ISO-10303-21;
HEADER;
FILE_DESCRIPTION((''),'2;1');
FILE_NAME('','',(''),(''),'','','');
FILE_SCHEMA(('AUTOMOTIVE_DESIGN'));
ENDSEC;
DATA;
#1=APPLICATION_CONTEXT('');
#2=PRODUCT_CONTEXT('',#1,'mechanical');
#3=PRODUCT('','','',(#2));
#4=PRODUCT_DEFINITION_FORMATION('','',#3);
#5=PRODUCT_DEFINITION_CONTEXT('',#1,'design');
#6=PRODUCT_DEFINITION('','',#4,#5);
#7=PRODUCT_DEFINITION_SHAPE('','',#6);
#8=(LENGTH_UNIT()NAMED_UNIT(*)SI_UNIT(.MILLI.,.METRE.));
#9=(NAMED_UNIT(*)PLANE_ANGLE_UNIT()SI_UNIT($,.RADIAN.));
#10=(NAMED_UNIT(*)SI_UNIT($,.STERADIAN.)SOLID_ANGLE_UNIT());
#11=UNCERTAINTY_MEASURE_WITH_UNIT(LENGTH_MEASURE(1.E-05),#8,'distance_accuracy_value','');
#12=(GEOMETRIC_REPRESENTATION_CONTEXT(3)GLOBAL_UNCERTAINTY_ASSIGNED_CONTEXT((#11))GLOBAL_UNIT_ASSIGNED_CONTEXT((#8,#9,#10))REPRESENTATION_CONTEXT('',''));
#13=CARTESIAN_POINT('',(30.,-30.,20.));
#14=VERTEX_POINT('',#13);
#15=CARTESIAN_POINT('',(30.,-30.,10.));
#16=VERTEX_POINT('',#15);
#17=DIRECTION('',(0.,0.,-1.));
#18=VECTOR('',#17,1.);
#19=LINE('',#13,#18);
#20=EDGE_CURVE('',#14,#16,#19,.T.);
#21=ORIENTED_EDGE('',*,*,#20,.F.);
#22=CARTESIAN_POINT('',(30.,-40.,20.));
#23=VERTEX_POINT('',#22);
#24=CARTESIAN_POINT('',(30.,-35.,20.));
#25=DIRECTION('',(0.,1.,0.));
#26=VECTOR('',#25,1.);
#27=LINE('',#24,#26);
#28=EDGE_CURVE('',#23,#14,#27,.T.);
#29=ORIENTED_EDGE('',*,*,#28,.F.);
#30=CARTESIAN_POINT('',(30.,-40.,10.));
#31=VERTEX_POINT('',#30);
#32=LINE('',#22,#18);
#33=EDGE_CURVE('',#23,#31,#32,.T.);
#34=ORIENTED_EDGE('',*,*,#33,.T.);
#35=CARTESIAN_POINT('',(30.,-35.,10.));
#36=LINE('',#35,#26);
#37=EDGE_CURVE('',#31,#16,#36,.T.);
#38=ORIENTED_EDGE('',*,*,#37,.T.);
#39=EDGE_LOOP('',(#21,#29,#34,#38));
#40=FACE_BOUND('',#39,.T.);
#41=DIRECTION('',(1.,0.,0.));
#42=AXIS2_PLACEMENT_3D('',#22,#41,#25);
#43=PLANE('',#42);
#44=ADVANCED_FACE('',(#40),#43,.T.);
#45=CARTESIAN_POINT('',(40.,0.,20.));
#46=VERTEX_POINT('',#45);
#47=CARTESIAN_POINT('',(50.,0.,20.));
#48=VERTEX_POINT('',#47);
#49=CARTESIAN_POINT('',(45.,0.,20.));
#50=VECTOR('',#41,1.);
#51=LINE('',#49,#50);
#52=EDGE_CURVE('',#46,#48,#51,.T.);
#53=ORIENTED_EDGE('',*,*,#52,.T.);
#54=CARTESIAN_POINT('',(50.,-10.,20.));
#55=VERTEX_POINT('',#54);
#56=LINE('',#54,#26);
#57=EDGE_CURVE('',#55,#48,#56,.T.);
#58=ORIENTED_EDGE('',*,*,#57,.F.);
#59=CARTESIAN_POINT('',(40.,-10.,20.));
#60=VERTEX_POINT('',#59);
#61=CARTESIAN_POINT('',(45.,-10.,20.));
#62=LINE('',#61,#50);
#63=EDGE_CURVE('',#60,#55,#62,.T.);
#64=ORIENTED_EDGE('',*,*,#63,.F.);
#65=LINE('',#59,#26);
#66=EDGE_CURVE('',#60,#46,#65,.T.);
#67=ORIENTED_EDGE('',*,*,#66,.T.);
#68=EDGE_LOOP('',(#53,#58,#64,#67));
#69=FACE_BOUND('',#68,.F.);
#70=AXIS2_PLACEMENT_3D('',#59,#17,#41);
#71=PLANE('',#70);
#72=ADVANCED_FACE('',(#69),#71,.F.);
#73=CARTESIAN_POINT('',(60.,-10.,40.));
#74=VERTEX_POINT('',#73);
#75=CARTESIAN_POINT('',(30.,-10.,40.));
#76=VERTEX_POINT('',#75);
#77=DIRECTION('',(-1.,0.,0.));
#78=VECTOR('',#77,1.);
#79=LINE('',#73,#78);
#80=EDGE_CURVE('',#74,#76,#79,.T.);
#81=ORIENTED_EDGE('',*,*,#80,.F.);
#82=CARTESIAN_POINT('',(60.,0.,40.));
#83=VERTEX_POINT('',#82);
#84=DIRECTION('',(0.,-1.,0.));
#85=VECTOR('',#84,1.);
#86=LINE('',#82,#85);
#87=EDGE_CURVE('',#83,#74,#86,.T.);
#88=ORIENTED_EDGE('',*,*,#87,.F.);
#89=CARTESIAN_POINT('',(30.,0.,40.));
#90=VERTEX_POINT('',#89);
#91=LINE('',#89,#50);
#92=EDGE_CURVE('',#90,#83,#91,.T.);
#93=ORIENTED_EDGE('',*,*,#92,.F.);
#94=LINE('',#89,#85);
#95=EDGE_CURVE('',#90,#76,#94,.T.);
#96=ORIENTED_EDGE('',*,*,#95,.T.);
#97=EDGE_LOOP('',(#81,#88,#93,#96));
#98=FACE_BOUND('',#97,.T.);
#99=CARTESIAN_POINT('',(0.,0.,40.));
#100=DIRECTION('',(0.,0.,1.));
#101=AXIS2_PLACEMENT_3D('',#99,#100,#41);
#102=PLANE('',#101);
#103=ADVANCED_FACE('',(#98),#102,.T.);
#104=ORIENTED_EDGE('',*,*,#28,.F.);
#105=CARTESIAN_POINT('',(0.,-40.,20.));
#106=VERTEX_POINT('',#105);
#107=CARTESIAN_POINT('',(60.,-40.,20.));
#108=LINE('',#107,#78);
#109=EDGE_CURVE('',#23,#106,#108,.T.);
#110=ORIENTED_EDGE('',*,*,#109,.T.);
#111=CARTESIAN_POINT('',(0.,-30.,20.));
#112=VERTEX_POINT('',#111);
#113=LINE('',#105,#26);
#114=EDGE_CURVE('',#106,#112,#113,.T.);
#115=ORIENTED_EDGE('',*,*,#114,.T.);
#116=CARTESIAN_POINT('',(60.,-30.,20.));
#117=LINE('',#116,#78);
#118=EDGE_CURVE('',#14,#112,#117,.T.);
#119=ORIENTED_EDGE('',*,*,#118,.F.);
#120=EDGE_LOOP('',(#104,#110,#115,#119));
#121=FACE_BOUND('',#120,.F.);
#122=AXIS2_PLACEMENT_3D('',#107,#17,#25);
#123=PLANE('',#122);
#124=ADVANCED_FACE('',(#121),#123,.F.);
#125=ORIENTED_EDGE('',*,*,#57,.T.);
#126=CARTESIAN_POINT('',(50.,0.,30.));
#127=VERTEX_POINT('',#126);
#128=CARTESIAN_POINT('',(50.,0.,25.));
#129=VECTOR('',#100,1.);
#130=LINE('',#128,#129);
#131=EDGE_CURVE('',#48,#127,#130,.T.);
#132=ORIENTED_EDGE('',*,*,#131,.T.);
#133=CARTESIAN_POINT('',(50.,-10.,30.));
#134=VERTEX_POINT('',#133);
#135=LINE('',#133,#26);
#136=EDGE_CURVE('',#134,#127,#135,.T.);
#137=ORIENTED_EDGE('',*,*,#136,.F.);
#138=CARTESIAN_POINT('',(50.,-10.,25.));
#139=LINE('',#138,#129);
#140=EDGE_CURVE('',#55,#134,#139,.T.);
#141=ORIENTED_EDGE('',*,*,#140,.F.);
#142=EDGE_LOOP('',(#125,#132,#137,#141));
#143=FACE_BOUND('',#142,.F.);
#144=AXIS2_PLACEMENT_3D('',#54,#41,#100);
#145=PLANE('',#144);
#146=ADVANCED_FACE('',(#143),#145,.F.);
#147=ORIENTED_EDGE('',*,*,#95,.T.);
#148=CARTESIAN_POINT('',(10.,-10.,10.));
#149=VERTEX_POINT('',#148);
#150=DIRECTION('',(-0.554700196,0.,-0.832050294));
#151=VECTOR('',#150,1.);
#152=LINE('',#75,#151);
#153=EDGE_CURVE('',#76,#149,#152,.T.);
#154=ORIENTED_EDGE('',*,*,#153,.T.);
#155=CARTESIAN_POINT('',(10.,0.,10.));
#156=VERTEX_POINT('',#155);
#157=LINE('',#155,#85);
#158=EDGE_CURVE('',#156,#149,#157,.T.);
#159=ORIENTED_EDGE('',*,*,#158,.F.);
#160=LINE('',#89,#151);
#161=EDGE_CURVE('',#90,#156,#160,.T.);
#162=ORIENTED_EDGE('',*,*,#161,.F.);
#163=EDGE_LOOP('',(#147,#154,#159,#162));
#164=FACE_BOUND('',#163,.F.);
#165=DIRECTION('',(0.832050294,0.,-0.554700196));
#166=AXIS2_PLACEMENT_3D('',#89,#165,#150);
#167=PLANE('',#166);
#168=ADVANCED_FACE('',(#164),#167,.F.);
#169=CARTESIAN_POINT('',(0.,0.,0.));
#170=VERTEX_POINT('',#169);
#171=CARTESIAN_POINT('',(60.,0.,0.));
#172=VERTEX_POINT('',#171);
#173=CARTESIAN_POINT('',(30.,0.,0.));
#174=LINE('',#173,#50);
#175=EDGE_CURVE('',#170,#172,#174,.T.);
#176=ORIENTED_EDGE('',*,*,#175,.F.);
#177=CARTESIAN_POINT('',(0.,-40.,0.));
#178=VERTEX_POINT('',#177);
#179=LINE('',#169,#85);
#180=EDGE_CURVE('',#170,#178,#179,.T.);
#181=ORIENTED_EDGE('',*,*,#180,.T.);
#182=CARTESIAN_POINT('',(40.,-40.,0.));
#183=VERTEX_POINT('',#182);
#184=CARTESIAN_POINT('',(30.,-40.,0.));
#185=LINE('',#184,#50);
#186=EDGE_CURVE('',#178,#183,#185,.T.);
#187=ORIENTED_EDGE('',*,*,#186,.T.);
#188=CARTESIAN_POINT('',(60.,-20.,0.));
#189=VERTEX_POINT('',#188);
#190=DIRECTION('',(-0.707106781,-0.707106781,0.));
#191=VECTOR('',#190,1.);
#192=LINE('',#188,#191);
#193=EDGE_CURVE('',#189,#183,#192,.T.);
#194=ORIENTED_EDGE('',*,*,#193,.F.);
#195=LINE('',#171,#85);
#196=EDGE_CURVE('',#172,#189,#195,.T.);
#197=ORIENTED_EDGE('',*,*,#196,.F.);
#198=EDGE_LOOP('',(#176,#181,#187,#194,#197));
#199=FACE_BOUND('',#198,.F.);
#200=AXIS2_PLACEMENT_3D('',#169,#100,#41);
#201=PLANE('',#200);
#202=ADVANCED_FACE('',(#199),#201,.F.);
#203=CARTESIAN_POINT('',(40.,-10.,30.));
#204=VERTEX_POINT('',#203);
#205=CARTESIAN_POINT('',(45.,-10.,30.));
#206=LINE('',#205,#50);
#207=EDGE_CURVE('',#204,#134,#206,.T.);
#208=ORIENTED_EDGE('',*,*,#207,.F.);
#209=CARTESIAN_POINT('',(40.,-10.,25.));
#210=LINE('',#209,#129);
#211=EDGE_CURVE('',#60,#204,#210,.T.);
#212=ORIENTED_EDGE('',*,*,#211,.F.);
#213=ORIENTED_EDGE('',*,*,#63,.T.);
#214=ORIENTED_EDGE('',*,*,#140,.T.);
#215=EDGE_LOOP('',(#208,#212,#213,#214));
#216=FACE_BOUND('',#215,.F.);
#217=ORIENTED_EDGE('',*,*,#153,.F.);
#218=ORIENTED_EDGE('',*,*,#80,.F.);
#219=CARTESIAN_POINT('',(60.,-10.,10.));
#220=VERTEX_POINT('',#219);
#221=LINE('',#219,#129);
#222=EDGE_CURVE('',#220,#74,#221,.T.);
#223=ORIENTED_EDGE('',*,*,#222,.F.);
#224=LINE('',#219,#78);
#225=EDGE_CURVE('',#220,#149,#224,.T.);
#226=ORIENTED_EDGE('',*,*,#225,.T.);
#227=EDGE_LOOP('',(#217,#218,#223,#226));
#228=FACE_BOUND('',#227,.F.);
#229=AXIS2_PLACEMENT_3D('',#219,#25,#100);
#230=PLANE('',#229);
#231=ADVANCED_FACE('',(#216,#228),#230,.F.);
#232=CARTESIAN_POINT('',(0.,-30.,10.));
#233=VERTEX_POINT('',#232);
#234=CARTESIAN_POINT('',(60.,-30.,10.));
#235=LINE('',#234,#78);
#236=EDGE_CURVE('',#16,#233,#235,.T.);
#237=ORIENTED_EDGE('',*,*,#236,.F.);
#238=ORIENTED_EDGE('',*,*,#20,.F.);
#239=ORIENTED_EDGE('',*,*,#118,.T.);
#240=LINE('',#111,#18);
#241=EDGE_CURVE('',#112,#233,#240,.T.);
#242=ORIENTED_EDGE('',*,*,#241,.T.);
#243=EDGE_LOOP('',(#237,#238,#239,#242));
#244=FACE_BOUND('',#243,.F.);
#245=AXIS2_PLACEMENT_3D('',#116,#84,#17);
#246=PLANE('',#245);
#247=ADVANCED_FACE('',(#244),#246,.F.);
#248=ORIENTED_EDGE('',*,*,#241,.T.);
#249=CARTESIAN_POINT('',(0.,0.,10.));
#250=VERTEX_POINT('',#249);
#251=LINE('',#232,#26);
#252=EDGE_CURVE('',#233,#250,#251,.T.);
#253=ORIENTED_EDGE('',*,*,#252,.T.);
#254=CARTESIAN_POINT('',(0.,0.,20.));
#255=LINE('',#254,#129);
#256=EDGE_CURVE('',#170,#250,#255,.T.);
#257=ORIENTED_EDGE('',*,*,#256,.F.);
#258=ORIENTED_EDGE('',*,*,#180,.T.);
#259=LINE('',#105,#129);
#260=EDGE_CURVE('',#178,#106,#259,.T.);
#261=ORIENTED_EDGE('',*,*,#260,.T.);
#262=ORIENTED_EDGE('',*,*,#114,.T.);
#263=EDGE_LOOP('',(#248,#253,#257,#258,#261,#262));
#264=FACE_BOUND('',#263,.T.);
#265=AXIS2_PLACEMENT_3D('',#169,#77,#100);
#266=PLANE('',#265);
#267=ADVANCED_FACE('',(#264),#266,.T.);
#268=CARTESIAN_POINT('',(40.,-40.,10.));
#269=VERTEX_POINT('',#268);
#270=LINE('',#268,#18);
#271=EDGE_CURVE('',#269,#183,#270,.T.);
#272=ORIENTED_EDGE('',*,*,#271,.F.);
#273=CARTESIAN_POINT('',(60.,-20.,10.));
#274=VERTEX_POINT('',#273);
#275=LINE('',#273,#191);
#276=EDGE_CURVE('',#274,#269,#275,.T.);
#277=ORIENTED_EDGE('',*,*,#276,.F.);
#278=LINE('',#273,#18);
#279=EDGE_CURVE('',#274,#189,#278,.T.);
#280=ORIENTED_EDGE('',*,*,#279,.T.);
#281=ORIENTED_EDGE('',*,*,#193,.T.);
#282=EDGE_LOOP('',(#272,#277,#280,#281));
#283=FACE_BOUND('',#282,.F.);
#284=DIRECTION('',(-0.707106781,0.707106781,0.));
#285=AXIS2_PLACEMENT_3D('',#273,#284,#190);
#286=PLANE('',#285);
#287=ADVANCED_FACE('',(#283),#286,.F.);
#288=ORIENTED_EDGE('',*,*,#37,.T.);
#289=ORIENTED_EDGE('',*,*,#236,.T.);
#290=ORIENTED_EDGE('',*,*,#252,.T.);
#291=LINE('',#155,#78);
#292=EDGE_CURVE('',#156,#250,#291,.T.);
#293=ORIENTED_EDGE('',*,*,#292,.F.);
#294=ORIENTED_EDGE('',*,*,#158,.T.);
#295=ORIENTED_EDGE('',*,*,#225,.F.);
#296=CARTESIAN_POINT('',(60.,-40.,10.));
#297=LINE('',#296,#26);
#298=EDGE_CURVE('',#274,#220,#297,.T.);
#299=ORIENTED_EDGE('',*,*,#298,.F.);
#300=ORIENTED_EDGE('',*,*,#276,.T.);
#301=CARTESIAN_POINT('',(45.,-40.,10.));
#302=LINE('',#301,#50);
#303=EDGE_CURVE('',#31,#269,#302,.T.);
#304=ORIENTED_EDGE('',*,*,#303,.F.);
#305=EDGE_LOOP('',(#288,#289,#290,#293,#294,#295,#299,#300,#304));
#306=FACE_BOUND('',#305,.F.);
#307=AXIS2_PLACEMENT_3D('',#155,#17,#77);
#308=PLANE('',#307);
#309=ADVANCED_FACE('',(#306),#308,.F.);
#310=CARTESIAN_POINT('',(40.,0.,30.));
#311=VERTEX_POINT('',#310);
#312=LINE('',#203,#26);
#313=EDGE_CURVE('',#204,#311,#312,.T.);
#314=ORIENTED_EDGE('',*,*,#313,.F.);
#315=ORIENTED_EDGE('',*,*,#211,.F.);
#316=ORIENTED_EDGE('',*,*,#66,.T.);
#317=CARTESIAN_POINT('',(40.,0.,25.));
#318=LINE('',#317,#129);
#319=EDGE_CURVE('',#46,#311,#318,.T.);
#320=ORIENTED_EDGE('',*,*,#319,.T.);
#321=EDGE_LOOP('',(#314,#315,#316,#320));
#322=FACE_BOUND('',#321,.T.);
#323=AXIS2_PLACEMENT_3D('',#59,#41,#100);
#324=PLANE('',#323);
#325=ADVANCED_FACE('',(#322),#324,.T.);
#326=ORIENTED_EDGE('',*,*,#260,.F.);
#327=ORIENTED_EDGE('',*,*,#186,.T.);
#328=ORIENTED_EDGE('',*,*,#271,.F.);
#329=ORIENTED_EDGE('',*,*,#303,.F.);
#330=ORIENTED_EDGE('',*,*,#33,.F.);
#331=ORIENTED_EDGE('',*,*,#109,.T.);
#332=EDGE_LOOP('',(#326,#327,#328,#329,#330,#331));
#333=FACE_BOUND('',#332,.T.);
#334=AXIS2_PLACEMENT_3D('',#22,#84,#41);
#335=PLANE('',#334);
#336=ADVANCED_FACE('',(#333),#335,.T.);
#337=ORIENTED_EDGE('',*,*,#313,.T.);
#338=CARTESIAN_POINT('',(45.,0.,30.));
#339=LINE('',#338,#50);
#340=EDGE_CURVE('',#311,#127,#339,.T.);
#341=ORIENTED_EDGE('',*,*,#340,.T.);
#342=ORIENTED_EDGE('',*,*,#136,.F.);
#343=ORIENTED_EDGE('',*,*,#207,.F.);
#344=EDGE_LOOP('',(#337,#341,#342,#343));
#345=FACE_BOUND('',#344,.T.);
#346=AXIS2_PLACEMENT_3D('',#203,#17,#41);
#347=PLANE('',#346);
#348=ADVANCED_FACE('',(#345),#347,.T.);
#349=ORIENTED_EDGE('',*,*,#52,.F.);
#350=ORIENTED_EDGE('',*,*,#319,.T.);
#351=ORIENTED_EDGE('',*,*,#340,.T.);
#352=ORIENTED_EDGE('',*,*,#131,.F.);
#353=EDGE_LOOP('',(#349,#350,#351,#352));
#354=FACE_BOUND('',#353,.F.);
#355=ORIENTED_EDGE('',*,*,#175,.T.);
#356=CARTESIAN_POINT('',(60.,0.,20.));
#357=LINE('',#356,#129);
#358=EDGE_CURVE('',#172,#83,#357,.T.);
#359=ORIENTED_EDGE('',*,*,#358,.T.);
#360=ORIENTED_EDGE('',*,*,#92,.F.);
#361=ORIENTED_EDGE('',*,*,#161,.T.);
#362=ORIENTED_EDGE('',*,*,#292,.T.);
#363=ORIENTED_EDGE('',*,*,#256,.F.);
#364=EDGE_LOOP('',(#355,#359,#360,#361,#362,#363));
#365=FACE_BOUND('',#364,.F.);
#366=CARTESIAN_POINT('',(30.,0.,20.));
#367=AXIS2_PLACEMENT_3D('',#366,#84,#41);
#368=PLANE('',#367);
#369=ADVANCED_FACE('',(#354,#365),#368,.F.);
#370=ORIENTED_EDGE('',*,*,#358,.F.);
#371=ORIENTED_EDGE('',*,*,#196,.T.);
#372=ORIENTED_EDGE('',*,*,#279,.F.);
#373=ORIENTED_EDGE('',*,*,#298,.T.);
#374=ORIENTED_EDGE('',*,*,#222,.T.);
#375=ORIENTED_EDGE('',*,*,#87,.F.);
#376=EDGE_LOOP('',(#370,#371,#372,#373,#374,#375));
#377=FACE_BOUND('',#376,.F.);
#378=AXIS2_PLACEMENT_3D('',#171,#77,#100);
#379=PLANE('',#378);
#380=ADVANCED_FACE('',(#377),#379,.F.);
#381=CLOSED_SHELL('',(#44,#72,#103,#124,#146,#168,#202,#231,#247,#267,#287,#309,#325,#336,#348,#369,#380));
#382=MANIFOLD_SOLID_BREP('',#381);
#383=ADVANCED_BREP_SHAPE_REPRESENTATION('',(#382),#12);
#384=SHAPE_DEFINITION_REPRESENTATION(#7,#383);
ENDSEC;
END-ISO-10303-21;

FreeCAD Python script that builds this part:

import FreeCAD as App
import Part
import Sketcher

doc = App.newDocument("Part")
body = doc.addObject("PartDesign::Body", "Body")

sketch1 = doc.addObject("Sketcher::SketchObject", "Sketch")
body.addObject(sketch1)
sketch1.AttachmentSupport = (doc.XZ_Plane, [""])
sketch1.MapMode = "FlatFace"
sketch1.addGeometry([
    Part.LineSegment(App.Vector(0, 40, 0), App.Vector(0, 0, 0)),
    Part.LineSegment(App.Vector(0, 0, 0), App.Vector(60, 0, 0)),
    Part.LineSegment(App.Vector(60, 0, 0), App.Vector(60, 40, 0)),
    Part.LineSegment(App.Vector(60, 40, 0), App.Vector(0, 40, 0)),
], False)
sketch1.addConstraint([
    Sketcher.Constraint("Coincident", 0, 2, 1, 1),
    Sketcher.Constraint("Coincident", 1, 2, 2, 1),
    Sketcher.Constraint("Coincident", 2, 2, 3, 1),
    Sketcher.Constraint("Coincident", 3, 2, 0, 1),
    Sketcher.Constraint("Vertical", 0),
    Sketcher.Constraint("Horizontal", 1),
    Sketcher.Constraint("Vertical", 2),
    Sketcher.Constraint("Horizontal", 3),
    Sketcher.Constraint("Coincident", 0, 2, -1, 1),
    Sketcher.Constraint("DistanceX", 1, 1, 1, 2, 60.0),
    Sketcher.Constraint("DistanceY", 0, 2, 0, 1, 40.0),
])
pad1 = doc.addObject("PartDesign::Pad", "Pad")
body.addObject(pad1)
pad1.Profile = sketch1
pad1.Length = 40

sketch2 = doc.addObject("Sketcher::SketchObject", "Sketch001")
body.addObject(sketch2)
sketch2.AttachmentSupport = (doc.YZ_Plane, [""])
sketch2.MapMode = "FlatFace"
sketch2.AttachmentOffset = App.Placement(App.Vector(0, 0, 60), App.Rotation())
sketch2.addGeometry([
    Part.LineSegment(App.Vector(-10, 10, 0), App.Vector(-10, 40, 0)),
    Part.LineSegment(App.Vector(-10, 40, 0), App.Vector(-40, 40, 0)),
    Part.LineSegment(App.Vector(-40, 40, 0), App.Vector(-40, 20, 0)),
    Part.LineSegment(App.Vector(-40, 20, 0), App.Vector(-30, 20, 0)),
    Part.LineSegment(App.Vector(-30, 20, 0), App.Vector(-30, 10, 0)),
    Part.LineSegment(App.Vector(-30, 10, 0), App.Vector(-10, 10, 0)),
], False)
sketch2.addConstraint([
    Sketcher.Constraint("Coincident", 0, 2, 1, 1),
    Sketcher.Constraint("Coincident", 1, 2, 2, 1),
    Sketcher.Constraint("Coincident", 2, 2, 3, 1),
    Sketcher.Constraint("Coincident", 3, 2, 4, 1),
    Sketcher.Constraint("Coincident", 4, 2, 5, 1),
    Sketcher.Constraint("Coincident", 5, 2, 0, 1),
    Sketcher.Constraint("Vertical", 0),
    Sketcher.Constraint("Horizontal", 1),
    Sketcher.Constraint("Vertical", 2),
    Sketcher.Constraint("Horizontal", 3),
    Sketcher.Constraint("Vertical", 4),
    Sketcher.Constraint("Horizontal", 5),
    Sketcher.Constraint("Equal", 1, 0),
    Sketcher.Constraint("Equal", 5, 2),
    Sketcher.Constraint("DistanceX", 1, 2, 1, 1, 30.0),
    Sketcher.Constraint("DistanceX", 3, 1, 3, 2, 10.0),
    Sketcher.Constraint("DistanceX", 0, 2, -1, 1, 10.0),
    Sketcher.Constraint("DistanceY", -1, 1, 0, 2, 40.0),
])
pocket1 = doc.addObject("PartDesign::Pocket", "Pocket")
body.addObject(pocket1)
pocket1.Profile = sketch2
pocket1.Length = 60

sketch3 = doc.addObject("Sketcher::SketchObject", "Sketch002")
body.addObject(sketch3)
sketch3.AttachmentSupport = (doc.XY_Plane, [""])
sketch3.MapMode = "FlatFace"
sketch3.AttachmentOffset = App.Placement(App.Vector(0, 0, 20), App.Rotation())
sketch3.addGeometry([
    Part.LineSegment(App.Vector(30, -30, 0), App.Vector(30, -40, 0)),
    Part.LineSegment(App.Vector(30, -40, 0), App.Vector(60, -40, 0)),
    Part.LineSegment(App.Vector(60, -40, 0), App.Vector(60, -30, 0)),
    Part.LineSegment(App.Vector(60, -30, 0), App.Vector(30, -30, 0)),
], False)
sketch3.addConstraint([
    Sketcher.Constraint("Coincident", 0, 2, 1, 1),
    Sketcher.Constraint("Coincident", 1, 2, 2, 1),
    Sketcher.Constraint("Coincident", 2, 2, 3, 1),
    Sketcher.Constraint("Coincident", 3, 2, 0, 1),
    Sketcher.Constraint("Vertical", 0),
    Sketcher.Constraint("Horizontal", 1),
    Sketcher.Constraint("Vertical", 2),
    Sketcher.Constraint("Horizontal", 3),
    Sketcher.Constraint("DistanceX", 1, 1, 1, 2, 30.0),
    Sketcher.Constraint("DistanceY", 0, 2, 0, 1, 10.0),
    Sketcher.Constraint("DistanceX", -1, 1, 0, 2, 30.0),
    Sketcher.Constraint("DistanceY", 0, 2, -1, 1, 40.0),
])
pocket2 = doc.addObject("PartDesign::Pocket", "Pocket001")
body.addObject(pocket2)
pocket2.Profile = sketch3
pocket2.Length = 10

sketch4 = doc.addObject("Sketcher::SketchObject", "Sketch003")
body.addObject(sketch4)
sketch4.AttachmentSupport = (doc.XY_Plane, [""])
sketch4.MapMode = "FlatFace"
sketch4.AttachmentOffset = App.Placement(App.Vector(0, 0, 10), App.Rotation())
sketch4.addGeometry([
    Part.LineSegment(App.Vector(40, -40, 0), App.Vector(60, -40, 0)),
    Part.LineSegment(App.Vector(60, -40, 0), App.Vector(60, -20, 0)),
    Part.LineSegment(App.Vector(60, -20, 0), App.Vector(40, -40, 0)),
], False)
sketch4.addConstraint([
    Sketcher.Constraint("Coincident", 0, 2, 1, 1),
    Sketcher.Constraint("Coincident", 1, 2, 2, 1),
    Sketcher.Constraint("Coincident", 2, 2, 0, 1),
    Sketcher.Constraint("Horizontal", 0),
    Sketcher.Constraint("Vertical", 1),
    Sketcher.Constraint("Equal", 0, 1),
    Sketcher.Constraint("DistanceX", 0, 1, 0, 2, 20.0),
    Sketcher.Constraint("DistanceX", -1, 1, 0, 2, 60.0),
    Sketcher.Constraint("DistanceY", 0, 2, -1, 1, 40.0),
])
pocket3 = doc.addObject("PartDesign::Pocket", "Pocket002")
body.addObject(pocket3)
pocket3.Profile = sketch4
pocket3.Length = 10

sketch5 = doc.addObject("Sketcher::SketchObject", "Sketch004")
body.addObject(sketch5)
sketch5.AttachmentSupport = (doc.XZ_Plane, [""])
sketch5.MapMode = "FlatFace"
sketch5.addGeometry([
    Part.LineSegment(App.Vector(10, 10, 0), App.Vector(0, 10, 0)),
    Part.LineSegment(App.Vector(0, 10, 0), App.Vector(0, 40, 0)),
    Part.LineSegment(App.Vector(0, 40, 0), App.Vector(30, 40, 0)),
    Part.LineSegment(App.Vector(30, 40, 0), App.Vector(10, 10, 0)),
], False)
sketch5.addConstraint([
    Sketcher.Constraint("Coincident", 0, 2, 1, 1),
    Sketcher.Constraint("Coincident", 1, 2, 2, 1),
    Sketcher.Constraint("Coincident", 2, 2, 3, 1),
    Sketcher.Constraint("Coincident", 3, 2, 0, 1),
    Sketcher.Constraint("Horizontal", 0),
    Sketcher.Constraint("Vertical", 1),
    Sketcher.Constraint("Horizontal", 2),
    Sketcher.Constraint("PointOnObject", 0, 2, -2),
    Sketcher.Constraint("Equal", 2, 1),
    Sketcher.Constraint("DistanceX", 0, 2, 0, 1, 10.0),
    Sketcher.Constraint("DistanceX", 2, 1, 2, 2, 30.0),
    Sketcher.Constraint("DistanceY", -1, 1, 0, 2, 10.0),
])
pocket4 = doc.addObject("PartDesign::Pocket", "Pocket003")
body.addObject(pocket4)
pocket4.Profile = sketch5
pocket4.Length = 10
pocket4.Reversed = True

sketch6 = doc.addObject("Sketcher::SketchObject", "Sketch005")
body.addObject(sketch6)
sketch6.AttachmentSupport = (doc.XZ_Plane, [""])
sketch6.MapMode = "FlatFace"
sketch6.AttachmentOffset = App.Placement(App.Vector(0, 0, 10), App.Rotation())
sketch6.addGeometry([
    Part.LineSegment(App.Vector(40, 30, 0), App.Vector(40, 20, 0)),
    Part.LineSegment(App.Vector(40, 20, 0), App.Vector(50, 20, 0)),
    Part.LineSegment(App.Vector(50, 20, 0), App.Vector(50, 30, 0)),
    Part.LineSegment(App.Vector(50, 30, 0), App.Vector(40, 30, 0)),
], False)
sketch6.addConstraint([
    Sketcher.Constraint("Coincident", 0, 2, 1, 1),
    Sketcher.Constraint("Coincident", 1, 2, 2, 1),
    Sketcher.Constraint("Coincident", 2, 2, 3, 1),
    Sketcher.Constraint("Coincident", 3, 2, 0, 1),
    Sketcher.Constraint("Vertical", 0),
    Sketcher.Constraint("Horizontal", 1),
    Sketcher.Constraint("Vertical", 2),
    Sketcher.Constraint("Horizontal", 3),
    Sketcher.Constraint("Equal", 3, 0),
    Sketcher.Constraint("DistanceX", 1, 1, 1, 2, 10.0),
    Sketcher.Constraint("DistanceX", -1, 1, 0, 2, 40.0),
    Sketcher.Constraint("DistanceY", -1, 1, 0, 2, 20.0),
])
pocket5 = doc.addObject("PartDesign::Pocket", "Pocket004")
body.addObject(pocket5)
pocket5.Profile = sketch6
pocket5.Length = 10

doc.recompute()
